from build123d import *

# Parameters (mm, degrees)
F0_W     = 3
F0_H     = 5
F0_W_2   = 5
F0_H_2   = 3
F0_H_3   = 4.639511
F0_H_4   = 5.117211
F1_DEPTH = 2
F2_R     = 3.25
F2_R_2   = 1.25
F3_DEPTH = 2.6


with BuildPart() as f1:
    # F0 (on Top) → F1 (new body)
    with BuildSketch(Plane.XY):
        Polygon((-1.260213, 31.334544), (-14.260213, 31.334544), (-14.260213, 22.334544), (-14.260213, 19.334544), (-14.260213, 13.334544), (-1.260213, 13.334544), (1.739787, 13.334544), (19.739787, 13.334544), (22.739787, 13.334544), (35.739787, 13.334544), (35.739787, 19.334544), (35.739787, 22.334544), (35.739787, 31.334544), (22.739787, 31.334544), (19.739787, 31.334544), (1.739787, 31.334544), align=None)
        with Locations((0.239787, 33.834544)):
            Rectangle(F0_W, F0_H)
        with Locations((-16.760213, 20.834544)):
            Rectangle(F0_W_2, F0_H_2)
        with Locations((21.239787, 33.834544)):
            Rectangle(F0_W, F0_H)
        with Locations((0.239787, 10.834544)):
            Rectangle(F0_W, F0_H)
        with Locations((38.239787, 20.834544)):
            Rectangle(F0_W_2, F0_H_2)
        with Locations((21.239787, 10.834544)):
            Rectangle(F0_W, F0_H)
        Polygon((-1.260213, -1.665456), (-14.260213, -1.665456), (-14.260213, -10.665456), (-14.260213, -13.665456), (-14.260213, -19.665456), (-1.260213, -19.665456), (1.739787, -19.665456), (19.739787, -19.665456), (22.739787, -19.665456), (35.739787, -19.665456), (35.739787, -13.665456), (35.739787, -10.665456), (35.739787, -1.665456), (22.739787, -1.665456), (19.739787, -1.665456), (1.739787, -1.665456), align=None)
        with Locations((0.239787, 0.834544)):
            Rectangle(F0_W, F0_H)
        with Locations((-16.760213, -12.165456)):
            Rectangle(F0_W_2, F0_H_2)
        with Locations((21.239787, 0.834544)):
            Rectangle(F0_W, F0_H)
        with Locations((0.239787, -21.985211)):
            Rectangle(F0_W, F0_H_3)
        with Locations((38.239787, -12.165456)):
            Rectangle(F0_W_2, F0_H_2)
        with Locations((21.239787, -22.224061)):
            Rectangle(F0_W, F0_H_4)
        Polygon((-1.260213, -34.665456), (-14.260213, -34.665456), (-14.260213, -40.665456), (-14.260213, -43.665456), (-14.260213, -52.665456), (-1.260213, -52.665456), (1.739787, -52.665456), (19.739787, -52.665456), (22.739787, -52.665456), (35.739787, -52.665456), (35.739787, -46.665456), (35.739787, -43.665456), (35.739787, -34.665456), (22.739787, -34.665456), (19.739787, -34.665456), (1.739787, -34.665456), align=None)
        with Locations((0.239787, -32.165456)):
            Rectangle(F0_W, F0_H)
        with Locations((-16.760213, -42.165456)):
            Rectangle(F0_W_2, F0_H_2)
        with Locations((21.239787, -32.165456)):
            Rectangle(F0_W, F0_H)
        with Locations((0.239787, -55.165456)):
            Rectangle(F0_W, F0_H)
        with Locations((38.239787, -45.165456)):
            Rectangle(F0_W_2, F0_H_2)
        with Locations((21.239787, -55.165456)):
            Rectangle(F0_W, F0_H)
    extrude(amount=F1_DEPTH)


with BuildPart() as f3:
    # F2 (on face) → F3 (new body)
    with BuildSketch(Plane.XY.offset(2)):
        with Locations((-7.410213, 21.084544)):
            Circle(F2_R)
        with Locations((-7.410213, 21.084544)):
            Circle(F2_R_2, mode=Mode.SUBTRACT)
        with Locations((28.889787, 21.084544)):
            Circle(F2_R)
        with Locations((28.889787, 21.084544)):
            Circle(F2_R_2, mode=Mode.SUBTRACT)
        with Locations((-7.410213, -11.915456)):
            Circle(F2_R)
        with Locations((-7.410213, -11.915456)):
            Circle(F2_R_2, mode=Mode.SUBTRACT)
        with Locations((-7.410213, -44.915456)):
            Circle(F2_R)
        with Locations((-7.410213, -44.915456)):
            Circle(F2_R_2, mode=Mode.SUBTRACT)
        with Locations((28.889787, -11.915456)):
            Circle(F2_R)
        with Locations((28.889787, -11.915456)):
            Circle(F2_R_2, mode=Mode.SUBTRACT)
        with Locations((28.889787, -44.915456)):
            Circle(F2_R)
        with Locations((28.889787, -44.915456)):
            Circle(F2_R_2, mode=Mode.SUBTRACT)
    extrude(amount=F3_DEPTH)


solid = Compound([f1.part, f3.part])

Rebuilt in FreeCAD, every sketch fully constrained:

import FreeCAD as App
import Part
import Sketcher

V = App.Vector
Q = App.Units.Quantity

doc = App.newDocument("Part")
body = doc.addObject("PartDesign::Body", "Body")
body.AllowCompound = True

sketch1 = body.newObject("Sketcher::SketchObject", "Sketch")
sketch1.AttachmentSupport = (doc.getObject("XY_Plane"), [""])
sketch1.MapMode = "FlatFace"
sketch1.addGeometry([
    Part.LineSegment(V(-14.3, 31.3, 0), V(-14.3, 22.3, 0)),
    Part.LineSegment(V(-14.3, 22.3, 0), V(-19.3, 22.3, 0)),
    Part.LineSegment(V(-19.3, 22.3, 0), V(-19.3, 19.3, 0)),
    Part.LineSegment(V(-19.3, 19.3, 0), V(-14.3, 19.3, 0)),
    Part.LineSegment(V(-14.3, 19.3, 0), V(-14.3, 13.3, 0)),
    Part.LineSegment(V(-14.3, 13.3, 0), V(-1.3, 13.3, 0)),
    Part.LineSegment(V(-1.3, 13.3, 0), V(-1.3, 8.3, 0)),
    Part.LineSegment(V(-1.3, 8.3, 0), V(1.7, 8.3, 0)),
    Part.LineSegment(V(1.7, 8.3, 0), V(1.7, 13.3, 0)),
    Part.LineSegment(V(1.7, 13.3, 0), V(19.7, 13.3, 0)),
    Part.LineSegment(V(19.7, 13.3, 0), V(19.7, 8.3, 0)),
    Part.LineSegment(V(19.7, 8.3, 0), V(22.7, 8.3, 0)),
    Part.LineSegment(V(22.7, 8.3, 0), V(22.7, 13.3, 0)),
    Part.LineSegment(V(22.7, 13.3, 0), V(35.7, 13.3, 0)),
    Part.LineSegment(V(35.7, 13.3, 0), V(35.7, 19.3, 0)),
    Part.LineSegment(V(35.7, 19.3, 0), V(40.7, 19.3, 0)),
    Part.LineSegment(V(40.7, 19.3, 0), V(40.7, 22.3, 0)),
    Part.LineSegment(V(40.7, 22.3, 0), V(35.7, 22.3, 0)),
    Part.LineSegment(V(35.7, 22.3, 0), V(35.7, 31.3, 0)),
    Part.LineSegment(V(35.7, 31.3, 0), V(22.7, 31.3, 0)),
    Part.LineSegment(V(22.7, 31.3, 0), V(22.7, 36.3, 0)),
    Part.LineSegment(V(22.7, 36.3, 0), V(19.7, 36.3, 0)),
    Part.LineSegment(V(19.7, 36.3, 0), V(19.7, 31.3, 0)),
    Part.LineSegment(V(19.7, 31.3, 0), V(1.7, 31.3, 0)),
    Part.LineSegment(V(1.7, 31.3, 0), V(1.7, 36.3, 0)),
    Part.LineSegment(V(1.7, 36.3, 0), V(-1.3, 36.3, 0)),
    Part.LineSegment(V(-1.3, 36.3, 0), V(-1.3, 31.3, 0)),
    Part.LineSegment(V(-1.3, 31.3, 0), V(-14.3, 31.3, 0)),
    Part.LineSegment(V(-1.3, 3.3, 0), V(-1.3, -1.7, 0)),
    Part.LineSegment(V(-1.3, -1.7, 0), V(-14.3, -1.7, 0)),
    Part.LineSegment(V(-14.3, -1.7, 0), V(-14.3, -10.7, 0)),
    Part.LineSegment(V(-14.3, -10.7, 0), V(-19.3, -10.7, 0)),
    Part.LineSegment(V(-19.3, -10.7, 0), V(-19.3, -13.7, 0)),
    Part.LineSegment(V(-19.3, -13.7, 0), V(-14.3, -13.7, 0)),
    Part.LineSegment(V(-14.3, -13.7, 0), V(-14.3, -19.7, 0)),
    Part.LineSegment(V(-14.3, -19.7, 0), V(-1.3, -19.7, 0)),
    Part.LineSegment(V(-1.3, -19.7, 0), V(-1.3, -24.3, 0)),
    Part.LineSegment(V(-1.3, -24.3, 0), V(1.7, -24.3, 0)),
    Part.LineSegment(V(1.7, -24.3, 0), V(1.7, -19.7, 0)),
    Part.LineSegment(V(1.7, -19.7, 0), V(19.7, -19.7, 0)),
    Part.LineSegment(V(19.7, -19.7, 0), V(19.7, -24.8, 0)),
    Part.LineSegment(V(19.7, -24.8, 0), V(22.7, -24.8, 0)),
    Part.LineSegment(V(22.7, -24.8, 0), V(22.7, -19.7, 0)),
    Part.LineSegment(V(22.7, -19.7, 0), V(35.7, -19.7, 0)),
    Part.LineSegment(V(35.7, -19.7, 0), V(35.7, -13.7, 0)),
    Part.LineSegment(V(35.7, -13.7, 0), V(40.7, -13.7, 0)),
    Part.LineSegment(V(40.7, -13.7, 0), V(40.7, -10.7, 0)),
    Part.LineSegment(V(40.7, -10.7, 0), V(35.7, -10.7, 0)),
    Part.LineSegment(V(35.7, -10.7, 0), V(35.7, -1.7, 0)),
    Part.LineSegment(V(35.7, -1.7, 0), V(22.7, -1.7, 0)),
    Part.LineSegment(V(22.7, -1.7, 0), V(22.7, 3.3, 0)),
    Part.LineSegment(V(22.7, 3.3, 0), V(19.7, 3.3, 0)),
    Part.LineSegment(V(19.7, 3.3, 0), V(19.7, -1.7, 0)),
    Part.LineSegment(V(19.7, -1.7, 0), V(1.7, -1.7, 0)),
    Part.LineSegment(V(1.7, -1.7, 0), V(1.7, 3.3, 0)),
    Part.LineSegment(V(1.7, 3.3, 0), V(-1.3, 3.3, 0)),
    Part.LineSegment(V(-14.3, -34.7, 0), V(-14.3, -40.7, 0)),
    Part.LineSegment(V(-14.3, -40.7, 0), V(-19.3, -40.7, 0)),
    Part.LineSegment(V(-19.3, -40.7, 0), V(-19.3, -43.7, 0)),
    Part.LineSegment(V(-19.3, -43.7, 0), V(-14.3, -43.7, 0)),
    Part.LineSegment(V(-14.3, -43.7, 0), V(-14.3, -52.7, 0)),
    Part.LineSegment(V(-14.3, -52.7, 0), V(-1.3, -52.7, 0)),
    Part.LineSegment(V(-1.3, -52.7, 0), V(-1.3, -57.7, 0)),
    Part.LineSegment(V(-1.3, -57.7, 0), V(1.7, -57.7, 0)),
    Part.LineSegment(V(1.7, -57.7, 0), V(1.7, -52.7, 0)),
    Part.LineSegment(V(1.7, -52.7, 0), V(19.7, -52.7, 0)),
    Part.LineSegment(V(19.7, -52.7, 0), V(19.7, -57.7, 0)),
    Part.LineSegment(V(19.7, -57.7, 0), V(22.7, -57.7, 0)),
    Part.LineSegment(V(22.7, -57.7, 0), V(22.7, -52.7, 0)),
    Part.LineSegment(V(22.7, -52.7, 0), V(35.7, -52.7, 0)),
    Part.LineSegment(V(35.7, -52.7, 0), V(35.7, -46.7, 0)),
    Part.LineSegment(V(35.7, -46.7, 0), V(40.7, -46.7, 0)),
    Part.LineSegment(V(40.7, -46.7, 0), V(40.7, -43.7, 0)),
    Part.LineSegment(V(40.7, -43.7, 0), V(35.7, -43.7, 0)),
    Part.LineSegment(V(35.7, -43.7, 0), V(35.7, -34.7, 0)),
    Part.LineSegment(V(35.7, -34.7, 0), V(22.7, -34.7, 0)),
    Part.LineSegment(V(22.7, -34.7, 0), V(22.7, -29.7, 0)),
    Part.LineSegment(V(22.7, -29.7, 0), V(19.7, -29.7, 0)),
    Part.LineSegment(V(19.7, -29.7, 0), V(19.7, -34.7, 0)),
    Part.LineSegment(V(19.7, -34.7, 0), V(1.7, -34.7, 0)),
    Part.LineSegment(V(1.7, -34.7, 0), V(1.7, -29.7, 0)),
    Part.LineSegment(V(1.7, -29.7, 0), V(-1.3, -29.7, 0)),
    Part.LineSegment(V(-1.3, -29.7, 0), V(-1.3, -34.7, 0)),
    Part.LineSegment(V(-1.3, -34.7, 0), V(-14.3, -34.7, 0)),
], False)
sketch1.addConstraint([
    Sketcher.Constraint("Coincident", 0, 2, 1, 1),
    Sketcher.Constraint("Coincident", 1, 2, 2, 1),
    Sketcher.Constraint("Coincident", 2, 2, 3, 1),
    Sketcher.Constraint("Coincident", 3, 2, 4, 1),
    Sketcher.Constraint("Coincident", 4, 2, 5, 1),
    Sketcher.Constraint("Coincident", 5, 2, 6, 1),
    Sketcher.Constraint("Coincident", 6, 2, 7, 1),
    Sketcher.Constraint("Coincident", 7, 2, 8, 1),
    Sketcher.Constraint("Coincident", 8, 2, 9, 1),
    Sketcher.Constraint("Coincident", 9, 2, 10, 1),
    Sketcher.Constraint("Coincident", 10, 2, 11, 1),
    Sketcher.Constraint("Coincident", 11, 2, 12, 1),
    Sketcher.Constraint("Coincident", 12, 2, 13, 1),
    Sketcher.Constraint("Coincident", 13, 2, 14, 1),
    Sketcher.Constraint("Coincident", 14, 2, 15, 1),
    Sketcher.Constraint("Coincident", 15, 2, 16, 1),
    Sketcher.Constraint("Coincident", 16, 2, 17, 1),
    Sketcher.Constraint("Coincident", 17, 2, 18, 1),
    Sketcher.Constraint("Coincident", 18, 2, 19, 1),
    Sketcher.Constraint("Coincident", 19, 2, 20, 1),
    Sketcher.Constraint("Coincident", 20, 2, 21, 1),
    Sketcher.Constraint("Coincident", 21, 2, 22, 1),
    Sketcher.Constraint("Coincident", 22, 2, 23, 1),
    Sketcher.Constraint("Coincident", 23, 2, 24, 1),
    Sketcher.Constraint("Coincident", 24, 2, 25, 1),
    Sketcher.Constraint("Coincident", 25, 2, 26, 1),
    Sketcher.Constraint("Coincident", 26, 2, 27, 1),
    Sketcher.Constraint("Coincident", 27, 2, 0, 1),
    Sketcher.Constraint("Coincident", 28, 2, 29, 1),
    Sketcher.Constraint("Coincident", 29, 2, 30, 1),
    Sketcher.Constraint("Coincident", 30, 2, 31, 1),
    Sketcher.Constraint("Coincident", 31, 2, 32, 1),
    Sketcher.Constraint("Coincident", 32, 2, 33, 1),
    Sketcher.Constraint("Coincident", 33, 2, 34, 1),
    Sketcher.Constraint("Coincident", 34, 2, 35, 1),
    Sketcher.Constraint("Coincident", 35, 2, 36, 1),
    Sketcher.Constraint("Coincident", 36, 2, 37, 1),
    Sketcher.Constraint("Coincident", 37, 2, 38, 1),
    Sketcher.Constraint("Coincident", 38, 2, 39, 1),
    Sketcher.Constraint("Coincident", 39, 2, 40, 1),
    Sketcher.Constraint("Coincident", 40, 2, 41, 1),
    Sketcher.Constraint("Coincident", 41, 2, 42, 1),
    Sketcher.Constraint("Coincident", 42, 2, 43, 1),
    Sketcher.Constraint("Coincident", 43, 2, 44, 1),
    Sketcher.Constraint("Coincident", 44, 2, 45, 1),
    Sketcher.Constraint("Coincident", 45, 2, 46, 1),
    Sketcher.Constraint("Coincident", 46, 2, 47, 1),
    Sketcher.Constraint("Coincident", 47, 2, 48, 1),
    Sketcher.Constraint("Coincident", 48, 2, 49, 1),
    Sketcher.Constraint("Coincident", 49, 2, 50, 1),
    Sketcher.Constraint("Coincident", 50, 2, 51, 1),
    Sketcher.Constraint("Coincident", 51, 2, 52, 1),
    Sketcher.Constraint("Coincident", 52, 2, 53, 1),
    Sketcher.Constraint("Coincident", 53, 2, 54, 1),
    Sketcher.Constraint("Coincident", 54, 2, 55, 1),
    Sketcher.Constraint("Coincident", 55, 2, 28, 1),
    Sketcher.Constraint("Coincident", 56, 2, 57, 1),
    Sketcher.Constraint("Coincident", 57, 2, 58, 1),
    Sketcher.Constraint("Coincident", 58, 2, 59, 1),
    Sketcher.Constraint("Coincident", 59, 2, 60, 1),
    Sketcher.Constraint("Coincident", 60, 2, 61, 1),
    Sketcher.Constraint("Coincident", 61, 2, 62, 1),
    Sketcher.Constraint("Coincident", 62, 2, 63, 1),
    Sketcher.Constraint("Coincident", 63, 2, 64, 1),
    Sketcher.Constraint("Coincident", 64, 2, 65, 1),
    Sketcher.Constraint("Coincident", 65, 2, 66, 1),
    Sketcher.Constraint("Coincident", 66, 2, 67, 1),
    Sketcher.Constraint("Coincident", 67, 2, 68, 1),
    Sketcher.Constraint("Coincident", 68, 2, 69, 1),
    Sketcher.Constraint("Coincident", 69, 2, 70, 1),
    Sketcher.Constraint("Coincident", 70, 2, 71, 1),
    Sketcher.Constraint("Coincident", 71, 2, 72, 1),
    Sketcher.Constraint("Coincident", 72, 2, 73, 1),
    Sketcher.Constraint("Coincident", 73, 2, 74, 1),
    Sketcher.Constraint("Coincident", 74, 2, 75, 1),
    Sketcher.Constraint("Coincident", 75, 2, 76, 1),
    Sketcher.Constraint("Coincident", 76, 2, 77, 1),
    Sketcher.Constraint("Coincident", 77, 2, 78, 1),
    Sketcher.Constraint("Coincident", 78, 2, 79, 1),
    Sketcher.Constraint("Coincident", 79, 2, 80, 1),
    Sketcher.Constraint("Coincident", 80, 2, 81, 1),
    Sketcher.Constraint("Coincident", 81, 2, 82, 1),
    Sketcher.Constraint("Coincident", 82, 2, 83, 1),
    Sketcher.Constraint("Coincident", 83, 2, 56, 1),
    Sketcher.Constraint("Vertical", 0),
    Sketcher.Constraint("Horizontal", 1),
    Sketcher.Constraint("Vertical", 2),
    Sketcher.Constraint("Horizontal", 3),
    Sketcher.Constraint("Vertical", 4),
    Sketcher.Constraint("Horizontal", 5),
    Sketcher.Constraint("Vertical", 6),
    Sketcher.Constraint("Horizontal", 7),
    Sketcher.Constraint("Vertical", 8),
    Sketcher.Constraint("Horizontal", 9),
    Sketcher.Constraint("Vertical", 10),
    Sketcher.Constraint("Horizontal", 11),
    Sketcher.Constraint("Vertical", 12),
    Sketcher.Constraint("Horizontal", 13),
    Sketcher.Constraint("Vertical", 14),
    Sketcher.Constraint("Horizontal", 15),
    Sketcher.Constraint("Vertical", 16),
    Sketcher.Constraint("Horizontal", 17),
    Sketcher.Constraint("Vertical", 18),
    Sketcher.Constraint("Horizontal", 19),
    Sketcher.Constraint("Vertical", 20),
    Sketcher.Constraint("Horizontal", 21),
    Sketcher.Constraint("Vertical", 22),
    Sketcher.Constraint("Horizontal", 23),
    Sketcher.Constraint("Vertical", 24),
    Sketcher.Constraint("Horizontal", 25),
    Sketcher.Constraint("Vertical", 26),
    Sketcher.Constraint("Horizontal", 27),
    Sketcher.Constraint("Vertical", 28),
    Sketcher.Constraint("Horizontal", 29),
    Sketcher.Constraint("Vertical", 30),
    Sketcher.Constraint("Horizontal", 31),
    Sketcher.Constraint("Vertical", 32),
    Sketcher.Constraint("Horizontal", 33),
    Sketcher.Constraint("Vertical", 34),
    Sketcher.Constraint("Horizontal", 35),
    Sketcher.Constraint("Vertical", 36),
    Sketcher.Constraint("Horizontal", 37),
    Sketcher.Constraint("Vertical", 38),
    Sketcher.Constraint("Horizontal", 39),
    Sketcher.Constraint("Vertical", 40),
    Sketcher.Constraint("Horizontal", 41),
    Sketcher.Constraint("Vertical", 42),
    Sketcher.Constraint("Horizontal", 43),
    Sketcher.Constraint("Vertical", 44),
    Sketcher.Constraint("Horizontal", 45),
    Sketcher.Constraint("Vertical", 46),
    Sketcher.Constraint("Horizontal", 47),
    Sketcher.Constraint("Vertical", 48),
    Sketcher.Constraint("Horizontal", 49),
    Sketcher.Constraint("Vertical", 50),
    Sketcher.Constraint("Horizontal", 51),
    Sketcher.Constraint("Vertical", 52),
    Sketcher.Constraint("Horizontal", 53),
    Sketcher.Constraint("Vertical", 54),
    Sketcher.Constraint("Horizontal", 55),
    Sketcher.Constraint("Vertical", 56),
    Sketcher.Constraint("Horizontal", 57),
    Sketcher.Constraint("Vertical", 58),
    Sketcher.Constraint("Horizontal", 59),
    Sketcher.Constraint("Vertical", 60),
    Sketcher.Constraint("Horizontal", 61),
    Sketcher.Constraint("Vertical", 62),
    Sketcher.Constraint("Horizontal", 63),
    Sketcher.Constraint("Vertical", 64),
    Sketcher.Constraint("Horizontal", 65),
    Sketcher.Constraint("Vertical", 66),
    Sketcher.Constraint("Horizontal", 67),
    Sketcher.Constraint("Vertical", 68),
    Sketcher.Constraint("Horizontal", 69),
    Sketcher.Constraint("Vertical", 70),
    Sketcher.Constraint("Horizontal", 71),
    Sketcher.Constraint("Vertical", 72),
    Sketcher.Constraint("Horizontal", 73),
    Sketcher.Constraint("Vertical", 74),
    Sketcher.Constraint("Horizontal", 75),
    Sketcher.Constraint("Vertical", 76),
    Sketcher.Constraint("Horizontal", 77),
    Sketcher.Constraint("Vertical", 78),
    Sketcher.Constraint("Horizontal", 79),
    Sketcher.Constraint("Vertical", 80),
    Sketcher.Constraint("Horizontal", 81),
    Sketcher.Constraint("Vertical", 82),
    Sketcher.Constraint("Horizontal", 83),
    Sketcher.Constraint("Horizontal", 5, 2, 8, 2),
    Sketcher.Constraint("Horizontal", 7, 2, 10, 2),
    Sketcher.Constraint("Horizontal", 9, 2, 12, 2),
    Sketcher.Constraint("Horizontal", 3, 2, 14, 2),
    Sketcher.Constraint("Horizontal", 1, 2, 16, 2),
    Sketcher.Constraint("Horizontal", 19, 2, 22, 2),
    Sketcher.Constraint("Horizontal", 21, 2, 24, 2),
    Sketcher.Constraint("Horizontal", 23, 2, 26, 2),
    Sketcher.Constraint("Horizontal", 35, 2, 38, 2),
    Sketcher.Constraint("Horizontal", 39, 2, 42, 2),
    Sketcher.Constraint("Horizontal", 33, 2, 44, 2),
    Sketcher.Constraint("Horizontal", 31, 2, 46, 2),
    Sketcher.Constraint("Horizontal", 29, 2, 48, 2),
    Sketcher.Constraint("Horizontal", 49, 2, 52, 2),
    Sketcher.Constraint("Horizontal", 51, 2, 54, 2),
    Sketcher.Constraint("Horizontal", 61, 2, 64, 2),
    Sketcher.Constraint("Horizontal", 63, 2, 66, 2),
    Sketcher.Constraint("Horizontal", 65, 2, 68, 2),
    Sketcher.Constraint("Horizontal", 59, 2, 72, 2),
    Sketcher.Constraint("Horizontal", 75, 2, 78, 2),
    Sketcher.Constraint("Horizontal", 77, 2, 80, 2),
    Sketcher.Constraint("Horizontal", 79, 2, 82, 2),
    Sketcher.Constraint("Vertical", 0, 2, 3, 2),
    Sketcher.Constraint("Vertical", 14, 2, 17, 2),
    Sketcher.Constraint("Vertical", 12, 2, 19, 2),
    Sketcher.Constraint("Vertical", 10, 2, 21, 2),
    Sketcher.Constraint("Vertical", 8, 2, 23, 2),
    Sketcher.Constraint("Vertical", 6, 2, 25, 2),
    Sketcher.Constraint("Vertical", 26, 2, 28, 2),
    Sketcher.Constraint("Vertical", 27, 2, 29, 2),
    Sketcher.Constraint("Vertical", 2, 2, 31, 2),
    Sketcher.Constraint("Vertical", 30, 2, 33, 2),
    Sketcher.Constraint("Vertical", 28, 2, 35, 2),
    Sketcher.Constraint("Vertical", 24, 2, 37, 2),
    Sketcher.Constraint("Vertical", 22, 2, 39, 2),
    Sketcher.Constraint("Vertical", 20, 2, 41, 2),
    Sketcher.Constraint("Vertical", 18, 2, 43, 2),
    Sketcher.Constraint("Vertical", 16, 2, 45, 2),
    Sketcher.Constraint("Vertical", 44, 2, 47, 2),
    Sketcher.Constraint("Vertical", 42, 2, 49, 2),
    Sketcher.Constraint("Vertical", 40, 2, 51, 2),
    Sketcher.Constraint("Vertical", 38, 2, 53, 2),
    Sketcher.Constraint("Vertical", 34, 2, 56, 2),
    Sketcher.Constraint("Vertical", 32, 2, 57, 2),
    Sketcher.Constraint("Vertical", 56, 2, 59, 2),
    Sketcher.Constraint("Vertical", 55, 2, 61, 2),
    Sketcher.Constraint("Vertical", 54, 2, 63, 2),
    Sketcher.Constraint("Vertical", 52, 2, 65, 2),
    Sketcher.Constraint("Vertical", 50, 2, 67, 2),
    Sketcher.Constraint("Vertical", 48, 2, 69, 2),
    Sketcher.Constraint("Vertical", 46, 2, 71, 2),
    Sketcher.Constraint("Vertical", 70, 2, 73, 2),
    Sketcher.Constraint("Vertical", 68, 2, 75, 2),
    Sketcher.Constraint("Vertical", 66, 2, 77, 2),
    Sketcher.Constraint("Vertical", 64, 2, 79, 2),
    Sketcher.Constraint("Vertical", 62, 2, 81, 2),
    Sketcher.Constraint("Equal", 7, 11),
    Sketcher.Constraint("Equal", 5, 13),
    Sketcher.Constraint("Equal", 3, 15),
    Sketcher.Constraint("Equal", 81, 2),
    Sketcher.Constraint("Equal", 73, 6),
    Sketcher.Constraint("Equal", 12, 20),
    Sketcher.Constraint("Equal", 26, 28),
    Sketcher.Constraint("Equal", 18, 30),
    Sketcher.Constraint("Equal", 16, 32),
    Sketcher.Constraint("Equal", 14, 34),
    Sketcher.Constraint("Equal", 44, 56),
    Sketcher.Constraint("Equal", 46, 58),
    Sketcher.Constraint("Equal", 48, 60),
    Sketcher.Constraint("Equal", 54, 62),
    Sketcher.Constraint("Equal", 56, 70),
    Sketcher.Constraint("Equal", 58, 72),
    Sketcher.Constraint("Equal", 68, 76),
    Sketcher.Constraint("DistanceX", 1, 2, 1, 1, Q("5 mm")),
    Sketcher.Constraint("DistanceX", 5, 1, 5, 2, Q("13 mm")),
    Sketcher.Constraint("DistanceX", 7, 1, 7, 2, Q("3 mm")),
    Sketcher.Constraint("DistanceX", 9, 1, 9, 2, Q("18 mm")),
    Sketcher.Constraint("DistanceY", 0, 2, 0, 1, Q("9 mm")),
    Sketcher.Constraint("DistanceY", 36, 2, 36, 1, Q("4.639511 mm")),
    Sketcher.Constraint("DistanceY", 40, 2, 40, 1, Q("5.117211 mm")),
    Sketcher.Constraint("DistanceX", 0, 2, -1, 1, Q("14.260213 mm")),
    Sketcher.Constraint("DistanceY", -1, 1, 0, 2, Q("22.334544 mm")),
    Sketcher.Constraint("DistanceY", 28, 2, -1, 1, Q("1.665456 mm")),
    Sketcher.Constraint("DistanceY", 56, 2, -1, 1, Q("40.665456 mm")),
])
pad1 = body.newObject("PartDesign::Pad", "Pad")
pad1.Profile = sketch1
pad1.Length = 2
body2 = doc.addObject("PartDesign::Body", "Body001")
body2.AllowCompound = True

sketch2 = body2.newObject("Sketcher::SketchObject", "Sketch001")
sketch2.AttachmentSupport = (doc.getObject("XY_Plane001"), [""])
sketch2.MapMode = "FlatFace"
sketch2.AttachmentOffset = App.Placement(V(0, 0, 2), App.Rotation())
sketch2.addGeometry([
    Part.Circle(V(-7.4, 21.1, 0), V(0, 0, 1), 3.2),
    Part.Circle(V(-7.4, 21.1, 0), V(0, 0, 1), 1.2),
    Part.Circle(V(28.9, 21.1, 0), V(0, 0, 1), 3.2),
    Part.Circle(V(28.9, 21.1, 0), V(0, 0, 1), 1.2),
    Part.Circle(V(-7.4, -11.9, 0), V(0, 0, 1), 3.2),
    Part.Circle(V(-7.4, -11.9, 0), V(0, 0, 1), 1.2),
    Part.Circle(V(-7.4, -44.9, 0), V(0, 0, 1), 3.2),
    Part.Circle(V(-7.4, -44.9, 0), V(0, 0, 1), 1.2),
    Part.Circle(V(28.9, -11.9, 0), V(0, 0, 1), 3.2),
    Part.Circle(V(28.9, -11.9, 0), V(0, 0, 1), 1.2),
    Part.Circle(V(28.9, -44.9, 0), V(0, 0, 1), 3.2),
    Part.Circle(V(28.9, -44.9, 0), V(0, 0, 1), 1.2),
], False)
sketch2.addConstraint([
    Sketcher.Constraint("Coincident", 1, 3, 0, 3),
    Sketcher.Constraint("Coincident", 3, 3, 2, 3),
    Sketcher.Constraint("Coincident", 5, 3, 4, 3),
    Sketcher.Constraint("Coincident", 7, 3, 6, 3),
    Sketcher.Constraint("Coincident", 9, 3, 8, 3),
    Sketcher.Constraint("Coincident", 11, 3, 10, 3),
    Sketcher.Constraint("Equal", 0, 2),
    Sketcher.Constraint("Equal", 1, 3),
    Sketcher.Constraint("Equal", 2, 4),
    Sketcher.Constraint("Equal", 3, 5),
    Sketcher.Constraint("Equal", 4, 6),
    Sketcher.Constraint("Equal", 5, 7),
    Sketcher.Constraint("Equal", 6, 8),
    Sketcher.Constraint("Equal", 7, 9),
    Sketcher.Constraint("Equal", 8, 10),
    Sketcher.Constraint("Equal", 9, 11),
    Sketcher.Constraint("Horizontal", 1, 3, 2, 3),
    Sketcher.Constraint("Horizontal", 5, 3, 8, 3),
    Sketcher.Constraint("Horizontal", 7, 3, 10, 3),
    Sketcher.Constraint("Vertical", 1, 3, 4, 3),
    Sketcher.Constraint("Vertical", 5, 3, 6, 3),
    Sketcher.Constraint("Vertical", 3, 3, 8, 3),
    Sketcher.Constraint("Vertical", 9, 3, 10, 3),
    Sketcher.Constraint("Diameter", 0, Q("6.5 mm")),
    Sketcher.Constraint("Diameter", 1, Q("2.5 mm")),
    Sketcher.Constraint("DistanceY", 4, 3, 0, 3, Q("33 mm")),
    Sketcher.Constraint("DistanceY", 6, 3, 4, 3, Q("33 mm")),
    Sketcher.Constraint("DistanceX", 0, 3, 2, 3, Q("36.3 mm")),
    Sketcher.Constraint("DistanceX", 0, 3, -1, 1, Q("7.410213 mm")),
    Sketcher.Constraint("DistanceY", -1, 1, 0, 3, Q("21.084544 mm")),
])
pad2 = body2.newObject("PartDesign::Pad", "Pad001")
pad2.Profile = sketch2
pad2.Length = 2.6

doc.recompute()
